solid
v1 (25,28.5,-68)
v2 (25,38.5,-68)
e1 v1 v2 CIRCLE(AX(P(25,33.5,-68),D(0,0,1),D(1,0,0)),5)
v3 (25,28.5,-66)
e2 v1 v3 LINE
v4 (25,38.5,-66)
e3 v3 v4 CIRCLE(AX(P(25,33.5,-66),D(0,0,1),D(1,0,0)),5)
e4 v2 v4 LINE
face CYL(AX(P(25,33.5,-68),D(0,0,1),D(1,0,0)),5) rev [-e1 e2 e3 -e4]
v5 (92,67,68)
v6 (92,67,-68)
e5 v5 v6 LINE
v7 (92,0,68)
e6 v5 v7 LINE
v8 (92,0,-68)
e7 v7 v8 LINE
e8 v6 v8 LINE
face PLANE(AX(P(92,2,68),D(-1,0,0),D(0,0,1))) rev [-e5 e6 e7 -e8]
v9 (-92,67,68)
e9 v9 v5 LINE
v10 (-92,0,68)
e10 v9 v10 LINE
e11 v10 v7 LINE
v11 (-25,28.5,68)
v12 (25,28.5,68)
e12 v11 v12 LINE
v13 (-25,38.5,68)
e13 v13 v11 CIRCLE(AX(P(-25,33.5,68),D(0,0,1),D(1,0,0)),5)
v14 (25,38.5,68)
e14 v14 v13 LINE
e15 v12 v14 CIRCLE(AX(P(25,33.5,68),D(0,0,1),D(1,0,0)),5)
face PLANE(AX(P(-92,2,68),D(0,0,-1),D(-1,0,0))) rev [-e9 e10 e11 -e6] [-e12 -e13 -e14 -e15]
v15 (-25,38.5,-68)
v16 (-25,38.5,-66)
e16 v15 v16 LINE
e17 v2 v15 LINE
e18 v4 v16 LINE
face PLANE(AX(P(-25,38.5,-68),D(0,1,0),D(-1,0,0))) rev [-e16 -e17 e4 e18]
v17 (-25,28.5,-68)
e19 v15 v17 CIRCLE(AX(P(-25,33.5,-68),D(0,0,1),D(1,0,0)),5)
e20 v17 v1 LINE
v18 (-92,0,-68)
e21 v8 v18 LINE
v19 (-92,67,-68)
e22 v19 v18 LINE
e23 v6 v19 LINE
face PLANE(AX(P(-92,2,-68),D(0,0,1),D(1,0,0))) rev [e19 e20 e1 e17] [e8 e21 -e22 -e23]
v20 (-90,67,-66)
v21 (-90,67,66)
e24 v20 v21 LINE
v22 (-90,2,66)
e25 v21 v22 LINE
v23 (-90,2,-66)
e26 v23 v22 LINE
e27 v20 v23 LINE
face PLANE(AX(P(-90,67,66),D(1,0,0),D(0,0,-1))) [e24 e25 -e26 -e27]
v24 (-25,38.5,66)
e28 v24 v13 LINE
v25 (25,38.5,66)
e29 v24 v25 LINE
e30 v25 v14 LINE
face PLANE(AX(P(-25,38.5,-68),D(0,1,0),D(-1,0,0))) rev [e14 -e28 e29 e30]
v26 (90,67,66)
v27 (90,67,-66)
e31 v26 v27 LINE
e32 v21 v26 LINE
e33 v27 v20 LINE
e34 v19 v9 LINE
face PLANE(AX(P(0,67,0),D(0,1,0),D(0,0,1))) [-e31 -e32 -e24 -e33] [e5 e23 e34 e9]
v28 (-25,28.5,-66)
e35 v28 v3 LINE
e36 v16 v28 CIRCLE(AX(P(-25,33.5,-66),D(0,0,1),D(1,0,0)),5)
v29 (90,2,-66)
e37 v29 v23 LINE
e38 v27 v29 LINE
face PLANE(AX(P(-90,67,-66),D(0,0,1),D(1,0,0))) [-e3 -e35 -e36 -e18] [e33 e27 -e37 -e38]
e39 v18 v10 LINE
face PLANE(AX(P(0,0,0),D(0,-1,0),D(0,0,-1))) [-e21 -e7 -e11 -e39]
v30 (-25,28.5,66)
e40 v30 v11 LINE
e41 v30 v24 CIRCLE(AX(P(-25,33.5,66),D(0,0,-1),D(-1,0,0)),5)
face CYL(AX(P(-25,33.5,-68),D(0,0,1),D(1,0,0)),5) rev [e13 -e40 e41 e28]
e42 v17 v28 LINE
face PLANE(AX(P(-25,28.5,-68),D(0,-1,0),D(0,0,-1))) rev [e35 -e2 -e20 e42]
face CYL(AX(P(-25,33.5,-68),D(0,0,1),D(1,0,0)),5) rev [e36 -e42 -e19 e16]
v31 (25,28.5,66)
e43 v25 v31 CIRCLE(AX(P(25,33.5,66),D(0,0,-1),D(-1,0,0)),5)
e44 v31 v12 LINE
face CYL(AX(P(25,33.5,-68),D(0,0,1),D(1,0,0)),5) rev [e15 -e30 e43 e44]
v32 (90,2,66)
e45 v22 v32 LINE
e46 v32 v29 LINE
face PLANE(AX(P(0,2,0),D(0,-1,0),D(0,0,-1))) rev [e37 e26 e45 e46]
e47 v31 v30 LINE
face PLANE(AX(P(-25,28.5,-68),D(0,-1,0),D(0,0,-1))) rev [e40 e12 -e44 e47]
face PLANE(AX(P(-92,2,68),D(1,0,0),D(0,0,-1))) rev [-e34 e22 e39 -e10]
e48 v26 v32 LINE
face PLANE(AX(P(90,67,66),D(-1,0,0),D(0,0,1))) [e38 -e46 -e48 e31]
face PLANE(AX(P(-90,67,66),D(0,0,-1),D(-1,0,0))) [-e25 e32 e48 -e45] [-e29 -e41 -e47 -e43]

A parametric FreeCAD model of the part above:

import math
import FreeCAD as App
import Part
import Sketcher


def add_polygon(sketch, points):
    """Adds a closed chain of lines whose ends are joined by coincident constraints."""
    first, n = sketch.GeometryCount, len(points)
    for a, b in zip(points, points[1:] + points[:1]):
        sketch.addGeometry(Part.LineSegment(App.Vector(*a, 0), App.Vector(*b, 0)), False)
    for i in range(n):
        sketch.addConstraint(Sketcher.Constraint("Coincident", first + i, 2, first + (i + 1) % n, 1))

doc = App.newDocument("Part")
body = doc.addObject("PartDesign::Body", "Body")

sketch1 = body.newObject("Sketcher::SketchObject", "Sketch")
sketch1.AttachmentSupport = (doc.getObject("XZ_Plane"), [""])
sketch1.MapMode = "FlatFace"
add_polygon(sketch1, [(-92, -68), (-92, 68), (92, 68), (92, -68)])
sketch1.addConstraint(Sketcher.Constraint("Vertical", 0))
sketch1.addConstraint(Sketcher.Constraint("Horizontal", 1))
sketch1.addConstraint(Sketcher.Constraint("Vertical", 2))
sketch1.addConstraint(Sketcher.Constraint("Horizontal", 3))
sketch1.addConstraint(Sketcher.Constraint("Symmetric", 0, 2, 2, 2, -1, 1))
sketch1.addConstraint(Sketcher.Constraint("DistanceX", 1, 1, 1, 2, 184.0))
sketch1.addConstraint(Sketcher.Constraint("DistanceY", 0, 1, 0, 2, 136.0))
pad1 = body.newObject("PartDesign::Pad", "Pad")
pad1.Profile = sketch1
pad1.Length = 2
pad1.Reversed = True

sketch2 = body.newObject("Sketcher::SketchObject", "Sketch001")
sketch2.AttachmentSupport = (doc.getObject("XZ_Plane"), [""])
sketch2.MapMode = "FlatFace"
sketch2.AttachmentOffset = App.Placement(App.Vector(0, 0, -2), App.Rotation())
add_polygon(sketch2, [(-92, -68), (-92, 68), (92, 68), (92, -68)])
add_polygon(sketch2, [(90, 66), (-90, 66), (-90, -66), (90, -66)])
sketch2.addConstraint(Sketcher.Constraint("Vertical", 0))
sketch2.addConstraint(Sketcher.Constraint("Horizontal", 1))
sketch2.addConstraint(Sketcher.Constraint("Vertical", 2))
sketch2.addConstraint(Sketcher.Constraint("Horizontal", 3))
sketch2.addConstraint(Sketcher.Constraint("Horizontal", 4))
sketch2.addConstraint(Sketcher.Constraint("Vertical", 5))
sketch2.addConstraint(Sketcher.Constraint("Horizontal", 6))
sketch2.addConstraint(Sketcher.Constraint("Vertical", 7))
sketch2.addConstraint(Sketcher.Constraint("Symmetric", 0, 2, 2, 2, -1, 1))
sketch2.addConstraint(Sketcher.Constraint("Symmetric", 4, 2, 6, 2, -1, 1))
sketch2.addConstraint(Sketcher.Constraint("DistanceX", 1, 1, 1, 2, 184.0))
sketch2.addConstraint(Sketcher.Constraint("DistanceX", 4, 2, 4, 1, 180.0))
sketch2.addConstraint(Sketcher.Constraint("DistanceY", 0, 1, 0, 2, 136.0))
sketch2.addConstraint(Sketcher.Constraint("DistanceY", 5, 2, 5, 1, 132.0))
pad2 = body.newObject("PartDesign::Pad", "Pad001")
pad2.Profile = sketch2
pad2.Length = 65
pad2.Reversed = True

sketch3 = body.newObject("Sketcher::SketchObject", "Sketch002")
sketch3.AttachmentSupport = (doc.getObject("XY_Plane"), [""])
sketch3.MapMode = "FlatFace"
sketch3.AttachmentOffset = App.Placement(App.Vector(0, 0, 68), App.Rotation())
sketch3.addGeometry(Part.LineSegment(App.Vector(25, 38, 0), App.Vector(-25, 38, 0)), False)
sketch3.addGeometry(Part.ArcOfCircle(Part.Circle(App.Vector(-25, 34, 0), App.Vector(0, 0, 1), 5), math.radians(90), math.radians(270)), False)
sketch3.addGeometry(Part.LineSegment(App.Vector(-25, 28, 0), App.Vector(25, 28, 0)), False)
sketch3.addGeometry(Part.ArcOfCircle(Part.Circle(App.Vector(25, 34, 0), App.Vector(0, 0, 1), 5), math.radians(-90), math.radians(90)), False)
sketch3.addConstraint(Sketcher.Constraint("Tangent", 0, 2, 1, 1))
sketch3.addConstraint(Sketcher.Constraint("Tangent", 1, 2, 2, 1))
sketch3.addConstraint(Sketcher.Constraint("Tangent", 2, 2, 3, 1))
sketch3.addConstraint(Sketcher.Constraint("Tangent", 3, 2, 0, 1))
sketch3.addConstraint(Sketcher.Constraint("Horizontal", 0))
sketch3.addConstraint(Sketcher.Constraint("Horizontal", 2))
sketch3.addConstraint(Sketcher.Constraint("Radius", 1, 5.0))
sketch3.addConstraint(Sketcher.Constraint("DistanceX", 0, 2, 0, 1, 50.0))
sketch3.addConstraint(Sketcher.Constraint("DistanceX", 1, 3, -1, 1, 25.0))
sketch3.addConstraint(Sketcher.Constraint("DistanceY", -1, 1, 1, 3, 33.5))
pocket1 = body.newObject("PartDesign::Pocket", "Pocket")
pocket1.Profile = sketch3
pocket1.Type = "ThroughAll"

doc.recompute()
